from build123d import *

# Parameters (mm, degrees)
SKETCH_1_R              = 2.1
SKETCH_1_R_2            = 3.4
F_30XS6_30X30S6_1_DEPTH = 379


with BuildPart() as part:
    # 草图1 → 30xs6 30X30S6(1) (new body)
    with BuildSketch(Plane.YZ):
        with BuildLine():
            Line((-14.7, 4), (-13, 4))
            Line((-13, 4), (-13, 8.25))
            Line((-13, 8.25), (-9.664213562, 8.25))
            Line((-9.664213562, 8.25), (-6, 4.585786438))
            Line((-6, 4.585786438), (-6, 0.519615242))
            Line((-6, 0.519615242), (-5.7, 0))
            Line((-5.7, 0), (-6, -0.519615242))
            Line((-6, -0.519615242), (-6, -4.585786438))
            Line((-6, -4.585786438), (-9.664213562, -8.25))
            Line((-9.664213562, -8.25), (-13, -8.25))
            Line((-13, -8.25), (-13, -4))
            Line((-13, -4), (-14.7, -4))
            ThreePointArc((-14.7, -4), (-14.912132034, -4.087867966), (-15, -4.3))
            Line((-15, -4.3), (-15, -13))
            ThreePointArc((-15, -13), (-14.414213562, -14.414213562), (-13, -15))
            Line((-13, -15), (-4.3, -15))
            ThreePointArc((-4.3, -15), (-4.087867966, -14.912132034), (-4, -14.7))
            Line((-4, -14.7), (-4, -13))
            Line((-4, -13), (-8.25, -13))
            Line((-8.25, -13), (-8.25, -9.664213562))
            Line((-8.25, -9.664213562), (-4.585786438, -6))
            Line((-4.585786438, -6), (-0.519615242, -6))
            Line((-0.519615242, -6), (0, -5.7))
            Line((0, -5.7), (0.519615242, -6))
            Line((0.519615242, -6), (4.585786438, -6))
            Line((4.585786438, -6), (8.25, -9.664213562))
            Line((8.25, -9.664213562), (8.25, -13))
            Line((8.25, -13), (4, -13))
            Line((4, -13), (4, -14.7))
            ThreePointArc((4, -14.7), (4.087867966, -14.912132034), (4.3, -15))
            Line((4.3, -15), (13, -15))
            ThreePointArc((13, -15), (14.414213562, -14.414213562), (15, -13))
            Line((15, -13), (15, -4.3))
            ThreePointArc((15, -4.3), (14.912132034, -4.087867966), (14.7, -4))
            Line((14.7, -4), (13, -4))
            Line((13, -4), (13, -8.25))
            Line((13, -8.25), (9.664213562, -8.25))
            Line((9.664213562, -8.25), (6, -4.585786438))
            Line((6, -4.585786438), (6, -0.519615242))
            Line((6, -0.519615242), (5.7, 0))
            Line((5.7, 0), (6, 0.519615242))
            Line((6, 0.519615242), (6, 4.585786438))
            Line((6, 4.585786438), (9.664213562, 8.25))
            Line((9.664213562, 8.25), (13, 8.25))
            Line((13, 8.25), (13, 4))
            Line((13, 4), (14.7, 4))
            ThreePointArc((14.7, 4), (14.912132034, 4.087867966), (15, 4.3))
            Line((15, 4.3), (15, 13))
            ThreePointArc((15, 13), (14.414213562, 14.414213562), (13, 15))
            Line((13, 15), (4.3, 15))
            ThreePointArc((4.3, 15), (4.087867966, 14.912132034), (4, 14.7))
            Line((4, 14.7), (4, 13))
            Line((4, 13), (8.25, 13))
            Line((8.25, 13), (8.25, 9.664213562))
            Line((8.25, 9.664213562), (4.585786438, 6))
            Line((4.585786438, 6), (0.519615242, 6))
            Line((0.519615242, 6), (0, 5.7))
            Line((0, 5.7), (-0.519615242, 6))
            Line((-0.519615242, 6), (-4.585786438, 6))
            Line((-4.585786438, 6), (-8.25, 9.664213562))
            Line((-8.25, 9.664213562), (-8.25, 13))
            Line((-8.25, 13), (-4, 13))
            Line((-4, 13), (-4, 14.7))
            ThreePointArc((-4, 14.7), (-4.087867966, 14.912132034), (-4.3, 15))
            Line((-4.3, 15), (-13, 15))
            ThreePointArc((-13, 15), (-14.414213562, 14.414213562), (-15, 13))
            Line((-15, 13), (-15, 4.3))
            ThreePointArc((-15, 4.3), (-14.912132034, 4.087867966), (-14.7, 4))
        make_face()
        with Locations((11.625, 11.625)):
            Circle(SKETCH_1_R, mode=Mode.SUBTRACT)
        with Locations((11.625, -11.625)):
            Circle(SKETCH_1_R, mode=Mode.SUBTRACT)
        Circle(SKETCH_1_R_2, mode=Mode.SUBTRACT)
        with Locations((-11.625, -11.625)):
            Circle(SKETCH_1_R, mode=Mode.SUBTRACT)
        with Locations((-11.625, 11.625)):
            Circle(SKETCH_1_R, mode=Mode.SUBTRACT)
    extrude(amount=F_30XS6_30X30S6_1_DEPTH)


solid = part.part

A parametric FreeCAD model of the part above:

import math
import FreeCAD as App
import Part
import Sketcher
Q = App.Units.Quantity

doc = App.newDocument("Part")
params = doc.addObject("Spreadsheet::Sheet", "Params")
for row, (alias, value) in enumerate([
    ("sketch1_radius", "2 mm"),
    ("sketch1_diameter", "4.2 mm"),
    ("sketch1_diameter2", "6.8 mm"),
    ("sketch1_radius2", "0.3 mm"),
    ("sketch1_width", "8.7 mm"),
    ("pad1_length", "379 mm"),
], start=1):
    params.set(f"A{row}", alias)
    params.set(f"B{row}", "=" + value)
    params.setAlias(f"B{row}", alias)

body = doc.addObject("PartDesign::Body", "Body")

sketch1 = body.newObject("Sketcher::SketchObject", "Sketch")
sketch1.AttachmentSupport = (doc.getObject("YZ_Plane"), [""])
sketch1.MapMode = "FlatFace"
sketch1.addGeometry([
    Part.LineSegment(App.Vector(-14.7, 4, 0), App.Vector(-13, 4, 0)),
    Part.LineSegment(App.Vector(-13, 4, 0), App.Vector(-13, 8.25, 0)),
    Part.LineSegment(App.Vector(-13, 8.25, 0), App.Vector(-9.66, 8.25, 0)),
    Part.LineSegment(App.Vector(-9.66, 8.25, 0), App.Vector(-6, 4.59, 0)),
    Part.LineSegment(App.Vector(-6, 4.59, 0), App.Vector(-6, 0.52, 0)),
    Part.LineSegment(App.Vector(-6, 0.52, 0), App.Vector(-5.7, 0, 0)),
    Part.LineSegment(App.Vector(-5.7, 0, 0), App.Vector(-6, -0.52, 0)),
    Part.LineSegment(App.Vector(-6, -0.52, 0), App.Vector(-6, -4.59, 0)),
    Part.LineSegment(App.Vector(-6, -4.59, 0), App.Vector(-9.66, -8.25, 0)),
    Part.LineSegment(App.Vector(-9.66, -8.25, 0), App.Vector(-13, -8.25, 0)),
    Part.LineSegment(App.Vector(-13, -8.25, 0), App.Vector(-13, -4, 0)),
    Part.LineSegment(App.Vector(-13, -4, 0), App.Vector(-14.7, -4, 0)),
    Part.ArcOfCircle(Part.Circle(App.Vector(-14.7, -4.3, 0), App.Vector(0, 0, 1), 0.3), math.radians(90), math.radians(180)),
    Part.LineSegment(App.Vector(-15, -4.3, 0), App.Vector(-15, -13, 0)),
    Part.ArcOfCircle(Part.Circle(App.Vector(-13, -13, 0), App.Vector(0, 0, 1), 2), math.radians(-180), math.radians(-90)),
    Part.LineSegment(App.Vector(-13, -15, 0), App.Vector(-4.3, -15, 0)),
    Part.ArcOfCircle(Part.Circle(App.Vector(-4.3, -14.7, 0), App.Vector(0, 0, 1), 0.3), math.radians(-90), math.radians(0)),
    Part.LineSegment(App.Vector(-4, -14.7, 0), App.Vector(-4, -13, 0)),
    Part.LineSegment(App.Vector(-4, -13, 0), App.Vector(-8.25, -13, 0)),
    Part.LineSegment(App.Vector(-8.25, -13, 0), App.Vector(-8.25, -9.66, 0)),
    Part.LineSegment(App.Vector(-8.25, -9.66, 0), App.Vector(-4.59, -6, 0)),
    Part.LineSegment(App.Vector(-4.59, -6, 0), App.Vector(-0.52, -6, 0)),
    Part.LineSegment(App.Vector(-0.52, -6, 0), App.Vector(0, -5.7, 0)),
    Part.LineSegment(App.Vector(0, -5.7, 0), App.Vector(0.52, -6, 0)),
    Part.LineSegment(App.Vector(0.52, -6, 0), App.Vector(4.59, -6, 0)),
    Part.LineSegment(App.Vector(4.59, -6, 0), App.Vector(8.25, -9.66, 0)),
    Part.LineSegment(App.Vector(8.25, -9.66, 0), App.Vector(8.25, -13, 0)),
    Part.LineSegment(App.Vector(8.25, -13, 0), App.Vector(4, -13, 0)),
    Part.LineSegment(App.Vector(4, -13, 0), App.Vector(4, -14.7, 0)),
    Part.ArcOfCircle(Part.Circle(App.Vector(4.3, -14.7, 0), App.Vector(0, 0, 1), 0.3), math.radians(-180), math.radians(-90)),
    Part.LineSegment(App.Vector(4.3, -15, 0), App.Vector(13, -15, 0)),
    Part.ArcOfCircle(Part.Circle(App.Vector(13, -13, 0), App.Vector(0, 0, 1), 2), math.radians(-90), math.radians(0)),
    Part.LineSegment(App.Vector(15, -13, 0), App.Vector(15, -4.3, 0)),
    Part.ArcOfCircle(Part.Circle(App.Vector(14.7, -4.3, 0), App.Vector(0, 0, 1), 0.3), math.radians(0), math.radians(90)),
    Part.LineSegment(App.Vector(14.7, -4, 0), App.Vector(13, -4, 0)),
    Part.LineSegment(App.Vector(13, -4, 0), App.Vector(13, -8.25, 0)),
    Part.LineSegment(App.Vector(13, -8.25, 0), App.Vector(9.66, -8.25, 0)),
    Part.LineSegment(App.Vector(9.66, -8.25, 0), App.Vector(6, -4.59, 0)),
    Part.LineSegment(App.Vector(6, -4.59, 0), App.Vector(6, -0.52, 0)),
    Part.LineSegment(App.Vector(6, -0.52, 0), App.Vector(5.7, 0, 0)),
    Part.LineSegment(App.Vector(5.7, 0, 0), App.Vector(6, 0.52, 0)),
    Part.LineSegment(App.Vector(6, 0.52, 0), App.Vector(6, 4.59, 0)),
    Part.LineSegment(App.Vector(6, 4.59, 0), App.Vector(9.66, 8.25, 0)),
    Part.LineSegment(App.Vector(9.66, 8.25, 0), App.Vector(13, 8.25, 0)),
    Part.LineSegment(App.Vector(13, 8.25, 0), App.Vector(13, 4, 0)),
    Part.LineSegment(App.Vector(13, 4, 0), App.Vector(14.7, 4, 0)),
    Part.ArcOfCircle(Part.Circle(App.Vector(14.7, 4.3, 0), App.Vector(0, 0, 1), 0.3), math.radians(-90), math.radians(0)),
    Part.LineSegment(App.Vector(15, 4.3, 0), App.Vector(15, 13, 0)),
    Part.ArcOfCircle(Part.Circle(App.Vector(13, 13, 0), App.Vector(0, 0, 1), 2), math.radians(0), math.radians(90)),
    Part.LineSegment(App.Vector(13, 15, 0), App.Vector(4.3, 15, 0)),
    Part.ArcOfCircle(Part.Circle(App.Vector(4.3, 14.7, 0), App.Vector(0, 0, 1), 0.3), math.radians(90), math.radians(180)),
    Part.LineSegment(App.Vector(4, 14.7, 0), App.Vector(4, 13, 0)),
    Part.LineSegment(App.Vector(4, 13, 0), App.Vector(8.25, 13, 0)),
    Part.LineSegment(App.Vector(8.25, 13, 0), App.Vector(8.25, 9.66, 0)),
    Part.LineSegment(App.Vector(8.25, 9.66, 0), App.Vector(4.59, 6, 0)),
    Part.LineSegment(App.Vector(4.59, 6, 0), App.Vector(0.52, 6, 0)),
    Part.LineSegment(App.Vector(0.52, 6, 0), App.Vector(0, 5.7, 0)),
    Part.LineSegment(App.Vector(0, 5.7, 0), App.Vector(-0.52, 6, 0)),
    Part.LineSegment(App.Vector(-0.52, 6, 0), App.Vector(-4.59, 6, 0)),
    Part.LineSegment(App.Vector(-4.59, 6, 0), App.Vector(-8.25, 9.66, 0)),
    Part.LineSegment(App.Vector(-8.25, 9.66, 0), App.Vector(-8.25, 13, 0)),
    Part.LineSegment(App.Vector(-8.25, 13, 0), App.Vector(-4, 13, 0)),
    Part.LineSegment(App.Vector(-4, 13, 0), App.Vector(-4, 14.7, 0)),
    Part.ArcOfCircle(Part.Circle(App.Vector(-4.3, 14.7, 0), App.Vector(0, 0, 1), 0.3), math.radians(0), math.radians(90)),
    Part.LineSegment(App.Vector(-4.3, 15, 0), App.Vector(-13, 15, 0)),
    Part.ArcOfCircle(Part.Circle(App.Vector(-13, 13, 0), App.Vector(0, 0, 1), 2), math.radians(90), math.radians(180)),
    Part.LineSegment(App.Vector(-15, 13, 0), App.Vector(-15, 4.3, 0)),
    Part.ArcOfCircle(Part.Circle(App.Vector(-14.7, 4.3, 0), App.Vector(0, 0, 1), 0.3), math.radians(-180), math.radians(-90)),
    Part.Circle(App.Vector(-11.62, -11.62, 0), App.Vector(0, 0, 1), 2.1),
    Part.Circle(App.Vector(11.62, -11.62, 0), App.Vector(0, 0, 1), 2.1),
    Part.Circle(App.Vector(-11.62, 11.62, 0), App.Vector(0, 0, 1), 2.1),
    Part.Circle(App.Vector(0, 0, 0), App.Vector(0, 0, 1), 3.4),
    Part.Circle(App.Vector(11.62, 11.62, 0), App.Vector(0, 0, 1), 2.1),
], False)
sketch1.addConstraint([
    Sketcher.Constraint("Coincident", 0, 2, 1, 1),
    Sketcher.Constraint("Coincident", 1, 2, 2, 1),
    Sketcher.Constraint("Coincident", 2, 2, 3, 1),
    Sketcher.Constraint("Coincident", 3, 2, 4, 1),
    Sketcher.Constraint("Coincident", 4, 2, 5, 1),
    Sketcher.Constraint("Coincident", 5, 2, 6, 1),
    Sketcher.Constraint("Coincident", 6, 2, 7, 1),
    Sketcher.Constraint("Coincident", 7, 2, 8, 1),
    Sketcher.Constraint("Coincident", 8, 2, 9, 1),
    Sketcher.Constraint("Coincident", 9, 2, 10, 1),
    Sketcher.Constraint("Coincident", 10, 2, 11, 1),
    Sketcher.Constraint("Tangent", 11, 2, 12, 1),
    Sketcher.Constraint("Tangent", 12, 2, 13, 1),
    Sketcher.Constraint("Tangent", 13, 2, 14, 1),
    Sketcher.Constraint("Tangent", 14, 2, 15, 1),
    Sketcher.Constraint("Tangent", 15, 2, 16, 1),
    Sketcher.Constraint("Tangent", 16, 2, 17, 1),
    Sketcher.Constraint("Coincident", 17, 2, 18, 1),
    Sketcher.Constraint("Coincident", 18, 2, 19, 1),
    Sketcher.Constraint("Coincident", 19, 2, 20, 1),
    Sketcher.Constraint("Coincident", 20, 2, 21, 1),
    Sketcher.Constraint("Coincident", 21, 2, 22, 1),
    Sketcher.Constraint("Coincident", 22, 2, 23, 1),
    Sketcher.Constraint("Coincident", 23, 2, 24, 1),
    Sketcher.Constraint("Coincident", 24, 2, 25, 1),
    Sketcher.Constraint("Coincident", 25, 2, 26, 1),
    Sketcher.Constraint("Coincident", 26, 2, 27, 1),
    Sketcher.Constraint("Coincident", 27, 2, 28, 1),
    Sketcher.Constraint("Tangent", 28, 2, 29, 1),
    Sketcher.Constraint("Tangent", 29, 2, 30, 1),
    Sketcher.Constraint("Tangent", 30, 2, 31, 1),
    Sketcher.Constraint("Tangent", 31, 2, 32, 1),
    Sketcher.Constraint("Tangent", 32, 2, 33, 1),
    Sketcher.Constraint("Tangent", 33, 2, 34, 1),
    Sketcher.Constraint("Coincident", 34, 2, 35, 1),
    Sketcher.Constraint("Coincident", 35, 2, 36, 1),
    Sketcher.Constraint("Coincident", 36, 2, 37, 1),
    Sketcher.Constraint("Coincident", 37, 2, 38, 1),
    Sketcher.Constraint("Coincident", 38, 2, 39, 1),
    Sketcher.Constraint("Coincident", 39, 2, 40, 1),
    Sketcher.Constraint("Coincident", 40, 2, 41, 1),
    Sketcher.Constraint("Coincident", 41, 2, 42, 1),
    Sketcher.Constraint("Coincident", 42, 2, 43, 1),
    Sketcher.Constraint("Coincident", 43, 2, 44, 1),
    Sketcher.Constraint("Coincident", 44, 2, 45, 1),
    Sketcher.Constraint("Tangent", 45, 2, 46, 1),
    Sketcher.Constraint("Tangent", 46, 2, 47, 1),
    Sketcher.Constraint("Tangent", 47, 2, 48, 1),
    Sketcher.Constraint("Tangent", 48, 2, 49, 1),
    Sketcher.Constraint("Tangent", 49, 2, 50, 1),
    Sketcher.Constraint("Tangent", 50, 2, 51, 1),
    Sketcher.Constraint("Coincident", 51, 2, 52, 1),
    Sketcher.Constraint("Coincident", 52, 2, 53, 1),
    Sketcher.Constraint("Coincident", 53, 2, 54, 1),
    Sketcher.Constraint("Coincident", 54, 2, 55, 1),
    Sketcher.Constraint("Coincident", 55, 2, 56, 1),
    Sketcher.Constraint("Coincident", 56, 2, 57, 1),
    Sketcher.Constraint("Coincident", 57, 2, 58, 1),
    Sketcher.Constraint("Coincident", 58, 2, 59, 1),
    Sketcher.Constraint("Coincident", 59, 2, 60, 1),
    Sketcher.Constraint("Coincident", 60, 2, 61, 1),
    Sketcher.Constraint("Coincident", 61, 2, 62, 1),
    Sketcher.Constraint("Tangent", 62, 2, 63, 1),
    Sketcher.Constraint("Tangent", 63, 2, 64, 1),
    Sketcher.Constraint("Tangent", 64, 2, 65, 1),
    Sketcher.Constraint("Tangent", 65, 2, 66, 1),
    Sketcher.Constraint("Tangent", 66, 2, 67, 1),
    Sketcher.Constraint("Tangent", 67, 2, 0, 1),
    Sketcher.Constraint("Horizontal", 0),
    Sketcher.Constraint("Vertical", 1),
    Sketcher.Constraint("Horizontal", 2),
    Sketcher.Constraint("Vertical", 4),
    Sketcher.Constraint("Vertical", 7),
    Sketcher.Constraint("Horizontal", 9),
    Sketcher.Constraint("Vertical", 10),
    Sketcher.Constraint("Horizontal", 11),
    Sketcher.Constraint("Vertical", 13),
    Sketcher.Constraint("Horizontal", 15),
    Sketcher.Constraint("Vertical", 17),
    Sketcher.Constraint("Horizontal", 18),
    Sketcher.Constraint("Vertical", 19),
    Sketcher.Constraint("Horizontal", 21),
    Sketcher.Constraint("Horizontal", 24),
    Sketcher.Constraint("Vertical", 26),
    Sketcher.Constraint("Horizontal", 27),
    Sketcher.Constraint("Vertical", 28),
    Sketcher.Constraint("Horizontal", 30),
    Sketcher.Constraint("Vertical", 32),
    Sketcher.Constraint("Horizontal", 34),
    Sketcher.Constraint("Vertical", 35),
    Sketcher.Constraint("Horizontal", 36),
    Sketcher.Constraint("Vertical", 38),
    Sketcher.Constraint("Vertical", 41),
    Sketcher.Constraint("Horizontal", 43),
    Sketcher.Constraint("Vertical", 44),
    Sketcher.Constraint("Horizontal", 45),
    Sketcher.Constraint("Vertical", 47),
    Sketcher.Constraint("Horizontal", 49),
    Sketcher.Constraint("Vertical", 51),
    Sketcher.Constraint("Horizontal", 52),
    Sketcher.Constraint("Vertical", 53),
    Sketcher.Constraint("Horizontal", 55),
    Sketcher.Constraint("Horizontal", 58),
    Sketcher.Constraint("Vertical", 60),
    Sketcher.Constraint("Horizontal", 61),
    Sketcher.Constraint("Vertical", 62),
    Sketcher.Constraint("Horizontal", 64),
    Sketcher.Constraint("Vertical", 66),
    Sketcher.Constraint("Coincident", 71, 3, -1, 1),
    Sketcher.Constraint("Equal", 12, 16),
    Sketcher.Constraint("Equal", 16, 29),
    Sketcher.Constraint("Equal", 14, 31),
    Sketcher.Constraint("Equal", 29, 33),
    Sketcher.Constraint("Equal", 33, 46),
    Sketcher.Constraint("Equal", 31, 48),
    Sketcher.Constraint("Equal", 46, 50),
    Sketcher.Constraint("Equal", 50, 63),
    Sketcher.Constraint("Equal", 48, 65),
    Sketcher.Constraint("Equal", 63, 67),
    Sketcher.Constraint("Equal", 68, 69),
    Sketcher.Constraint("Equal", 69, 70),
    Sketcher.Constraint("Equal", 70, 72),
    Sketcher.Constraint("Symmetric", 12, 3, 46, 3, -1, 1),
    Sketcher.Constraint("Symmetric", 16, 3, 50, 3, -1, 1),
    Sketcher.Constraint("Symmetric", 29, 3, 63, 3, -1, 1),
    Sketcher.Constraint("Symmetric", 33, 3, 67, 3, -1, 1),
    Sketcher.Constraint("Symmetric", 69, 3, 70, 3, -1, 1),
    Sketcher.Constraint("Symmetric", 68, 3, 72, 3, -1, 1),
    Sketcher.Constraint("Symmetric", 1, 2, 35, 2, -1, 1),
    Sketcher.Constraint("Symmetric", 3, 2, 37, 2, -1, 1),
    Sketcher.Constraint("Symmetric", 5, 2, 39, 2, -1, 1),
    Sketcher.Constraint("Symmetric", 6, 2, 40, 2, -1, 1),
    Sketcher.Constraint("Symmetric", 8, 2, 42, 2, -1, 1),
    Sketcher.Constraint("Symmetric", 18, 2, 52, 2, -1, 1),
    Sketcher.Constraint("Symmetric", 20, 2, 54, 2, -1, 1),
    Sketcher.Constraint("Symmetric", 22, 2, 56, 2, -1, 1),
    Sketcher.Constraint("Symmetric", 23, 2, 57, 2, -1, 1),
    Sketcher.Constraint("Symmetric", 25, 2, 59, 2, -1, 1),
    Sketcher.Constraint("Symmetric", 16, 3, 29, 3, -2),
    Sketcher.Constraint("Symmetric", 12, 3, 33, 3, -2),
    Sketcher.Constraint("Symmetric", 68, 3, 69, 3, -2),
    Sketcher.Constraint("Symmetric", 21, 2, 23, 2, -2),
    Sketcher.Constraint("Symmetric", 19, 2, 25, 2, -2),
    Sketcher.Constraint("Symmetric", 9, 2, 35, 2, -2),
    Sketcher.Constraint("Symmetric", 7, 2, 37, 2, -2),
    Sketcher.Constraint("PointOnObject", 5, 2, -1),
    Sketcher.Constraint("PointOnObject", 22, 2, -2),
    Sketcher.Constraint("Perpendicular", 3, 8),
    Sketcher.Constraint("Parallel", 8, 20),
    Sketcher.Constraint("Perpendicular", 5, 22),
    Sketcher.Constraint("Perpendicular", 6, 23),
    Sketcher.Constraint("Perpendicular", 20, 25),
    Sketcher.Constraint("Parallel", 25, 37),
    Sketcher.Constraint("Perpendicular", 22, 39),
    Sketcher.Constraint("Perpendicular", 37, 42),
    Sketcher.Constraint("Parallel", 42, 54),
    Sketcher.Constraint("Perpendicular", 39, 56),
    Sketcher.Constraint("Perpendicular", 54, 59),
    Sketcher.Constraint("Horizontal", 13, 2, 17, 2),
    Sketcher.Constraint("Horizontal", 18, 2, 26, 2),
    Sketcher.Constraint("Horizontal", 52, 2, 60, 2),
    Sketcher.Constraint("Vertical", 65, 3, 0, 2),
    Sketcher.Constraint("Vertical", 2, 2, 8, 2),
    Sketcher.Constraint("Vertical", 35, 2, 43, 2),
    Sketcher.Constraint("Equal", 61, 1),
    Sketcher.Constraint("Equal", 58, 4),
    Sketcher.Constraint("Equal", 64, 13),
    Sketcher.Constraint("Equal", 43, 19),
    Sketcher.Constraint("Equal", 8, 20),
    Sketcher.Constraint("Equal", 6, 22),
    Sketcher.Constraint("Radius", 14, Q("2 mm")),
    Sketcher.Constraint("Diameter", 68, Q("4.2 mm")),
    Sketcher.Constraint("Diameter", 71, Q("6.8 mm")),
    Sketcher.Constraint("Radius", 12, Q("0.3 mm")),
    Sketcher.Constraint("Angle", 5, Q("-60 deg")),
    Sketcher.Constraint("DistanceX", 15, 1, 15, 2, Q("8.7 mm")),
    Sketcher.Constraint("DistanceX", 14, 3, -1, 1, Q("13 mm")),
    Sketcher.Constraint("DistanceX", 3, 2, -1, 1, Q("6 mm")),
    Sketcher.Constraint("Distance", 5, Q("0.6 mm")),
    Sketcher.Constraint("DistanceX", 18, 2, 18, 1, Q("4.25 mm")),
    Sketcher.Constraint("DistanceX", 68, 3, -1, 1, Q("11.625 mm")),
    Sketcher.Constraint("DistanceY", 68, 3, -1, 1, Q("11.625 mm")),
    Sketcher.Constraint("DistanceX", 21, 1, 21, 2, Q("4.066171 mm")),
])
sketch1.setExpression("Constraints[170]", "Params.sketch1_radius")
sketch1.setExpression("Constraints[171]", "Params.sketch1_diameter")
sketch1.setExpression("Constraints[172]", "Params.sketch1_diameter2")
sketch1.setExpression("Constraints[173]", "Params.sketch1_radius2")
sketch1.setExpression("Constraints[175]", "Params.sketch1_width")
pad1 = body.newObject("PartDesign::Pad", "Pad")
pad1.Profile = sketch1
pad1.setExpression("Length", "Params.pad1_length")

doc.recompute()
